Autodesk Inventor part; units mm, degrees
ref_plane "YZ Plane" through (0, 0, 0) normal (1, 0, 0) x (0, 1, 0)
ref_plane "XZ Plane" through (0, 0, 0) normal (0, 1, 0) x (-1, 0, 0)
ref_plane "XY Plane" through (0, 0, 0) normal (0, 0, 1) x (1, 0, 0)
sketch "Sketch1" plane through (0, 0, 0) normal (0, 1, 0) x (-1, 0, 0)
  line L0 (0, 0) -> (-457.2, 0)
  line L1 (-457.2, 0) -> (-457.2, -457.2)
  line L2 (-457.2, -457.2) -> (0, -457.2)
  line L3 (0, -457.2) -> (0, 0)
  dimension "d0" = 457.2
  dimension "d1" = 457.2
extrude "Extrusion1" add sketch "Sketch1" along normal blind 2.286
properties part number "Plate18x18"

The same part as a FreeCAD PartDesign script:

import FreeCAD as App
import Part
import Sketcher
from FreeCAD import Vector
Q = App.Units.Quantity


def add_polygon(sketch, points):
    """Adds a closed chain of lines whose ends are joined by coincident constraints."""
    first, n = sketch.GeometryCount, len(points)
    for a, b in zip(points, points[1:] + points[:1]):
        sketch.addGeometry(Part.LineSegment(App.Vector(*a, 0), App.Vector(*b, 0)), False)
    for i in range(n):
        sketch.addConstraint(Sketcher.Constraint("Coincident", first + i, 2, first + (i + 1) % n, 1))

doc = App.newDocument("Part")
body = doc.addObject("PartDesign::Body", "Body")

sketch1 = body.newObject("Sketcher::SketchObject", "Sketch")
sketch1.AttachmentSupport = (doc.getObject("XZ_Plane"), [""])
sketch1.MapMode = "FlatFace"
add_polygon(sketch1, [(0, -457), (0, 0), (457, 0), (457, -457)])
sketch1.addConstraint(Sketcher.Constraint("Vertical", 0))
sketch1.addConstraint(Sketcher.Constraint("Horizontal", 1))
sketch1.addConstraint(Sketcher.Constraint("Vertical", 2))
sketch1.addConstraint(Sketcher.Constraint("Horizontal", 3))
sketch1.addConstraint(Sketcher.Constraint("Coincident", 0, 2, -1, 1))
sketch1.addConstraint(Sketcher.Constraint("Equal", 3, 0))
sketch1.addConstraint(Sketcher.Constraint("DistanceX", 1, 1, 1, 2, Q("18 in")))
pad1 = body.newObject("PartDesign::Pad", "Pad")
pad1.Profile = sketch1
pad1.Length = Q("0.09 in")
pad1.Reversed = True

doc.recompute()
